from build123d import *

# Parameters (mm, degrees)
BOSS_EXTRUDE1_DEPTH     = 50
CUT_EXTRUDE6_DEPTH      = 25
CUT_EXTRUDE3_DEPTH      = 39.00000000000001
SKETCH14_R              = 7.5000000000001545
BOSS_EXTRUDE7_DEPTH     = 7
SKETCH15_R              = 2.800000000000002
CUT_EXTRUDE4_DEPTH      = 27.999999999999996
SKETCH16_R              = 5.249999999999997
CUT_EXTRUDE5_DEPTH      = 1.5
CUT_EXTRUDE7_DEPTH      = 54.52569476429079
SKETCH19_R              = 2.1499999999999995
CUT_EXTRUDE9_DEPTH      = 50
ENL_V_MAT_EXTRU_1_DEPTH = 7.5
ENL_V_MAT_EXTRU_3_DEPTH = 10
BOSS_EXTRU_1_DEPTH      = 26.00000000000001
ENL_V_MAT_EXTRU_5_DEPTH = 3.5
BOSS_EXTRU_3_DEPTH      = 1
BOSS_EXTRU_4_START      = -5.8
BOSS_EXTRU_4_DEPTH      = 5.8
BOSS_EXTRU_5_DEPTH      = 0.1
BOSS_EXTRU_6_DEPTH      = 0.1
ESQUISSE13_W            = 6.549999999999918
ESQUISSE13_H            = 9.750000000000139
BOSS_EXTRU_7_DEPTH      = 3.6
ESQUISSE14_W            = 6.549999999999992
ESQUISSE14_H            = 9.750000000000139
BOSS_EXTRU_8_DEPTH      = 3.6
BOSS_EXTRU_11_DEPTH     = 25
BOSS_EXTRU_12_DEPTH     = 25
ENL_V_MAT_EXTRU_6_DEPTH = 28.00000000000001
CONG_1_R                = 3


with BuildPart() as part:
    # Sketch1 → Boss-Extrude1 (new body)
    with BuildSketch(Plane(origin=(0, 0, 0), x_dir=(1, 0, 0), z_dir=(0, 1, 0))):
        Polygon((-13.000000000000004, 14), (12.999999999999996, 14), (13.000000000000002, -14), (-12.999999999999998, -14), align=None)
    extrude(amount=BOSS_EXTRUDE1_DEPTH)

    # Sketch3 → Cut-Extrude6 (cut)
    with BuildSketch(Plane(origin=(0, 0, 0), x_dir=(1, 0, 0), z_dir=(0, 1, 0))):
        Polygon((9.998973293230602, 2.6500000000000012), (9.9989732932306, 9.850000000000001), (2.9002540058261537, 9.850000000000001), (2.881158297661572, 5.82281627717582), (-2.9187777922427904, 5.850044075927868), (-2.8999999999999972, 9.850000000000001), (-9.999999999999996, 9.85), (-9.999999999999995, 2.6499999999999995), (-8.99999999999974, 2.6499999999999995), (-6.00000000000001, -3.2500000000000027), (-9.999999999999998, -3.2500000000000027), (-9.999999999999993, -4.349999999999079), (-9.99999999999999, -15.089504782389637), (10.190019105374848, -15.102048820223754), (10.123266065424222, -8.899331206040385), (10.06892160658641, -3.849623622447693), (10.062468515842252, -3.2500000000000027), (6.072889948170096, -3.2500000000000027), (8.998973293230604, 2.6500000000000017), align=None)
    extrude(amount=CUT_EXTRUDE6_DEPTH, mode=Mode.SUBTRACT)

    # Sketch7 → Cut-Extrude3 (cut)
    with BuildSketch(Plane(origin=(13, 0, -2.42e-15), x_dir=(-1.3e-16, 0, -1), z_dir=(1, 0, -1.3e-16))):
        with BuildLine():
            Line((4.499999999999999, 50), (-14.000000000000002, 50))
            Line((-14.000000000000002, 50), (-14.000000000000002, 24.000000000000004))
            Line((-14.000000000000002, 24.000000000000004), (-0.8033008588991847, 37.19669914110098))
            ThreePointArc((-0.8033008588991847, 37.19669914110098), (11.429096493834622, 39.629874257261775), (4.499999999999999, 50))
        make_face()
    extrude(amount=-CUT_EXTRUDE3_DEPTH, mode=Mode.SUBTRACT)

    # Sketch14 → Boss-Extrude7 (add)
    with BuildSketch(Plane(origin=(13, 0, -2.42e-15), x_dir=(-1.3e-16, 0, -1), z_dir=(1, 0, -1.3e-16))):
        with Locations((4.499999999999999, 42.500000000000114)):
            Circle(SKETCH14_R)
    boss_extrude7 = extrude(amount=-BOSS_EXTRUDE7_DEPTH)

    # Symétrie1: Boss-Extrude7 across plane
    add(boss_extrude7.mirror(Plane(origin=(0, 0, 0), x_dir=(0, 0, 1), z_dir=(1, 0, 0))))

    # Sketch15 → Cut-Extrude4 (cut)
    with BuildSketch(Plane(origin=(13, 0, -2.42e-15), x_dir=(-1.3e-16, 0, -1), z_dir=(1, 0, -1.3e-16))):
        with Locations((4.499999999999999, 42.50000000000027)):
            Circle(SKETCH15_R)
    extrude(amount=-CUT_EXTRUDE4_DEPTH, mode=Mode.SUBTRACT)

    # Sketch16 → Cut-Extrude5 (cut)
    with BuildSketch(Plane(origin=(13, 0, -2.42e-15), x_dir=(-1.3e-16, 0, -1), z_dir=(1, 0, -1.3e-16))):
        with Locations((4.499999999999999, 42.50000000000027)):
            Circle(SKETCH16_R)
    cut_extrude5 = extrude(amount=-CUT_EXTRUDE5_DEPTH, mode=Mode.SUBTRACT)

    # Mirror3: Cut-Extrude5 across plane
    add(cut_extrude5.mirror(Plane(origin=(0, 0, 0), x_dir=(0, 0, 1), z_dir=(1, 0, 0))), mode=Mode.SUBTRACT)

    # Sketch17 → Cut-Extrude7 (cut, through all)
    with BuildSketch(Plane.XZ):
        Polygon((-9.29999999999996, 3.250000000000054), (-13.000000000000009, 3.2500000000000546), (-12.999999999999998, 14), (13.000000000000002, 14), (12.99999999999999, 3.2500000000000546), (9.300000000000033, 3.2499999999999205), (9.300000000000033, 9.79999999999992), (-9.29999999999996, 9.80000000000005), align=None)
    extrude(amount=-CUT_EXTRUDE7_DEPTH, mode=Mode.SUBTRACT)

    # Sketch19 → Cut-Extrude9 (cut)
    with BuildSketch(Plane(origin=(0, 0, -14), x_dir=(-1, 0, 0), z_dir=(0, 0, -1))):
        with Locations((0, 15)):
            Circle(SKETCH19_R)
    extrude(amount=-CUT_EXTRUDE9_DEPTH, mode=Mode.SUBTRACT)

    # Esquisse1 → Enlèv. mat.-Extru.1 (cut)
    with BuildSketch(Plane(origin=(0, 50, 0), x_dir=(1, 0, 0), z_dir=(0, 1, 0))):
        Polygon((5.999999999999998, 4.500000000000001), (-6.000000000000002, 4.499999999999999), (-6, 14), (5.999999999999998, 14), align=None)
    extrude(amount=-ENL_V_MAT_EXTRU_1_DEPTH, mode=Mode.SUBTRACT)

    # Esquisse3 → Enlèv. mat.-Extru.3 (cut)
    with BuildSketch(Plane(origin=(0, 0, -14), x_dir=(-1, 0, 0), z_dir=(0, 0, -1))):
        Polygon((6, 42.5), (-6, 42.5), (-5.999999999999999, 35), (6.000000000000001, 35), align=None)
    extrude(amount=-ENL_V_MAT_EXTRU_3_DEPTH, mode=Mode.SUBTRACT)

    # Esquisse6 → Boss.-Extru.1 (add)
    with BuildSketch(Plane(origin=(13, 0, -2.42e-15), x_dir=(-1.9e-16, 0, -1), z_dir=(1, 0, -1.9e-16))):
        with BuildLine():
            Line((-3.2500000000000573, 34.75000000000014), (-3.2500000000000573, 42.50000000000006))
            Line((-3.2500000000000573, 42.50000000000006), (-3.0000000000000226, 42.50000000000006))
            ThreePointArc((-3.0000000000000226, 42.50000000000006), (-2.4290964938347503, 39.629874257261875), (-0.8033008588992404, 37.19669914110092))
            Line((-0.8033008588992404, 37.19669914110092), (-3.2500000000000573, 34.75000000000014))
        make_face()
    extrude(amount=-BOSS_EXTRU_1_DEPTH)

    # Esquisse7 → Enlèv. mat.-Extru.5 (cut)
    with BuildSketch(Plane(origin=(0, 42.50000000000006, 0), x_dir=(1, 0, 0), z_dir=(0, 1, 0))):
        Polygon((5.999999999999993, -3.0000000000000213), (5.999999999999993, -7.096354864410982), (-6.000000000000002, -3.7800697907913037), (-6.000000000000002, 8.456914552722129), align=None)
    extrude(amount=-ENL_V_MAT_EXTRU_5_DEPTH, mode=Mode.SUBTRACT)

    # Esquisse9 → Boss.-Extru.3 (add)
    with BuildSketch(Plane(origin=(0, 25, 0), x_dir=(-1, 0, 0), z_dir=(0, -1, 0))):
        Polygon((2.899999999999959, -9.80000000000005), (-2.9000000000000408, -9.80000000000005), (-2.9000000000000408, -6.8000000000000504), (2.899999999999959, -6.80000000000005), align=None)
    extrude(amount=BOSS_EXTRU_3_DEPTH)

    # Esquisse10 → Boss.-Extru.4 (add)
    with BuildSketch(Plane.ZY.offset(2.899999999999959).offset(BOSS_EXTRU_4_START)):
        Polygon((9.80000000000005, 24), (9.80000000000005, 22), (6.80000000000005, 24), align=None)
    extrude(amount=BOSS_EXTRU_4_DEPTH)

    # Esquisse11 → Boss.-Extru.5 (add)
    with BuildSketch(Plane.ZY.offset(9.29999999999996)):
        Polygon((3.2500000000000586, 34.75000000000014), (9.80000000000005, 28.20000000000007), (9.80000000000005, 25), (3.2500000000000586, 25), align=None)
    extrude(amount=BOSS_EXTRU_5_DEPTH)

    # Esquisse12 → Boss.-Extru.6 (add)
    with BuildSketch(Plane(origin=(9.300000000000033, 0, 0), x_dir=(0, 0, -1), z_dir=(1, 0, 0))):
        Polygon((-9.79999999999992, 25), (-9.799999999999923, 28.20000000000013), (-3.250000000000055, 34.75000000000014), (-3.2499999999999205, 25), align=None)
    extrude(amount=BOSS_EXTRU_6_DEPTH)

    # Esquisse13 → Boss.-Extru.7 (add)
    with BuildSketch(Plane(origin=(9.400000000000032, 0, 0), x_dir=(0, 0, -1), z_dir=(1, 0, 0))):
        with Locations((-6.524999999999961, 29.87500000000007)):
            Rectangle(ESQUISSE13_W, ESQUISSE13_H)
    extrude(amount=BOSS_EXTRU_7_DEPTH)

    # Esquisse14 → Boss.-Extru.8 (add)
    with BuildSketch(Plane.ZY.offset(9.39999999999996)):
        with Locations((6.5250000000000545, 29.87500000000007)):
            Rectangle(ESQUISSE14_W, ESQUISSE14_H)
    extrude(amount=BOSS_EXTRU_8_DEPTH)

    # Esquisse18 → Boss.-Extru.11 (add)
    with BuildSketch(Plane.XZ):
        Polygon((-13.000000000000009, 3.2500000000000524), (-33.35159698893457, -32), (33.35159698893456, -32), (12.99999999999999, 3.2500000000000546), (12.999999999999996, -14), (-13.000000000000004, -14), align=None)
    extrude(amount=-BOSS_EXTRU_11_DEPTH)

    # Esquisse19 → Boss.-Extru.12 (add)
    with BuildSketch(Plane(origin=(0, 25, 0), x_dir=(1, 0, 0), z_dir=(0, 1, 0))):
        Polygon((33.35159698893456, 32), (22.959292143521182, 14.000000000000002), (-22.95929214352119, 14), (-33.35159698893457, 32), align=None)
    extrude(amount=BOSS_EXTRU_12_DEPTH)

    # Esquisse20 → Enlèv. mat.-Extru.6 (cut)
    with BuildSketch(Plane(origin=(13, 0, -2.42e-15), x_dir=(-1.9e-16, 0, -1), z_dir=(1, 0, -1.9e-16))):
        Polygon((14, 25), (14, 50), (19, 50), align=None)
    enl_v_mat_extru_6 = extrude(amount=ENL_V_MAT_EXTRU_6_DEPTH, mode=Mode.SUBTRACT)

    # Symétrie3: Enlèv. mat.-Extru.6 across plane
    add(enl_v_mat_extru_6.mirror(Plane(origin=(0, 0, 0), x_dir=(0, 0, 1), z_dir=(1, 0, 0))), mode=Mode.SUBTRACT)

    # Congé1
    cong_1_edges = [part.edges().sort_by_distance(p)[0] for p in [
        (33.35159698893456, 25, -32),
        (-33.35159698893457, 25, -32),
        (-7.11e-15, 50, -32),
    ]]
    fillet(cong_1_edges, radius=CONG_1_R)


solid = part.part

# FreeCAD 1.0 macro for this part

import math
import FreeCAD as App
import Part
import Sketcher
Q = App.Units.Quantity


def edges_at(feature, points):
    """Names of the edges that pass closest to the given points."""
    edges = feature.Shape.Edges
    near = lambda p: min(range(len(edges)), key=lambda i: edges[i].distToShape(Part.Vertex(*p))[0])
    return sorted({f"Edge{near(p) + 1}" for p in points})


def add_polygon(sketch, points):
    """Adds a closed chain of lines whose ends are joined by coincident constraints."""
    first, n = sketch.GeometryCount, len(points)
    for a, b in zip(points, points[1:] + points[:1]):
        sketch.addGeometry(Part.LineSegment(App.Vector(*a, 0), App.Vector(*b, 0)), False)
    for i in range(n):
        sketch.addConstraint(Sketcher.Constraint("Coincident", first + i, 2, first + (i + 1) % n, 1))

doc = App.newDocument("Part")
params = doc.addObject("Spreadsheet::Sheet", "Params")
for row, (alias, value) in enumerate([
    ("sketch1_width", "26 mm"),
    ("sketch1_height", "28 mm"),
    ("pad1_length", "50 mm"),
    ("sketch2_width", "1 mm"),
    ("sketch2_width2", "4 mm"),
    ("sketch2_length", "4 mm"),
    ("sketch2_width3", "7.1 mm"),
    ("sketch2_height", "7.2 mm"),
    ("pocket1_length", "25 mm"),
    ("sketch3_radius", "7.5 mm"),
    ("sketch3_width", "26 mm"),
    ("sketch3_height", "18.5 mm"),
    ("pocket2_length", "39 mm"),
    ("sketch4_diameter", "15 mm"),
    ("pad2_length", "7 mm"),
    ("sketch5_diameter", "5.6 mm"),
    ("pocket3_length", "28 mm"),
    ("sketch6_diameter", "10.5 mm"),
    ("pocket4_length", "1.5 mm"),
    ("sketch7_width", "26 mm"),
    ("sketch7_width2", "3.7 mm"),
    ("sketch7_height", "6.55 mm"),
    ("sketch7_height2", "10.75 mm"),
    ("sketch8_diameter", "4.3 mm"),
    ("pocket6_length", "50 mm"),
    ("sketch9_width", "12 mm"),
    ("sketch9_height", "9.5 mm"),
    ("pocket7_length", "7.5 mm"),
    ("sketch10_width", "12 mm"),
    ("sketch10_height", "7.5 mm"),
    ("pocket8_length", "10 mm"),
    ("sketch11_radius", "7.5 mm"),
    ("sketch11_width", "7.75 mm"),
    ("sketch11_height", "0.25 mm"),
    ("pad3_length", "26 mm"),
    ("pocket9_length", "3.5 mm"),
    ("sketch13_height", "3 mm"),
    ("sketch13_width", "5.8 mm"),
    ("pad4_length", "1 mm"),
    ("sketch14_width", "2 mm"),
    ("sketch14_height", "3 mm"),
    ("pad5_length", "5.8 mm"),
    ("sketch15_width", "3.2 mm"),
    ("sketch15_width2", "9.75 mm"),
    ("pad6_length", "0.1 mm"),
    ("sketch16_width", "3.2 mm"),
    ("sketch16_width2", "9.75 mm"),
    ("pad7_length", "0.1 mm"),
    ("sketch17_width", "9.75 mm"),
    ("sketch17_height", "6.55 mm"),
    ("pad8_length", "3.6 mm"),
    ("sketch18_width", "9.75 mm"),
    ("sketch18_height", "6.55 mm"),
    ("pad9_length", "3.6 mm"),
    ("sketch19_width", "26 mm"),
    ("sketch19_height", "17.25 mm"),
    ("pad10_length", "25 mm"),
    ("pad11_length", "25 mm"),
    ("sketch21_width", "25 mm"),
    ("sketch21_height", "5 mm"),
    ("pocket10_length", "28 mm"),
    ("fillet_radius", "3 mm"),
], start=1):
    params.set(f"A{row}", alias)
    params.set(f"B{row}", "=" + value)
    params.setAlias(f"B{row}", alias)

body = doc.addObject("PartDesign::Body", "Body")

sketch1 = body.newObject("Sketcher::SketchObject", "Sketch")
sketch1.AttachmentSupport = (doc.getObject("XZ_Plane"), [""])
sketch1.MapMode = "FlatFace"
add_polygon(sketch1, [(13, -14), (-13, -14), (-13, 14), (13, 14)])
sketch1.addConstraint([
    Sketcher.Constraint("Horizontal", 0),
    Sketcher.Constraint("Vertical", 1),
    Sketcher.Constraint("Horizontal", 2),
    Sketcher.Constraint("Vertical", 3),
    Sketcher.Constraint("Symmetric", 0, 2, 2, 2, -1, 1),
    Sketcher.Constraint("DistanceX", 0, 2, 0, 1, 26.0),
    Sketcher.Constraint("DistanceY", 1, 1, 1, 2, 28.0),
])
sketch1.setExpression("Constraints[9]", "Params.sketch1_width")
sketch1.setExpression("Constraints[10]", "Params.sketch1_height")
pad1 = body.newObject("PartDesign::Pad", "Pad")
pad1.Profile = sketch1
pad1.setExpression("Length", "Params.pad1_length")
pad1.Reversed = True

sketch2 = body.newObject("Sketcher::SketchObject", "Sketch001")
sketch2.AttachmentSupport = (doc.getObject("XZ_Plane"), [""])
sketch2.MapMode = "FlatFace"
add_polygon(sketch2, [(10, -2.6), (10, -9.8), (2.9, -9.8), (2.9, -5.8), (-2.9, -5.9), (-2.9, -9.8), (-10, -9.8), (-10, -2.6), (-9, -2.6), (-6, 3.2), (-10, 3.2), (-10, 15.1), (10.2, 15.1), (10.1, 3.2), (6.1, 3.2), (9, -2.6)])
sketch2.addConstraint([
    Sketcher.Constraint("Vertical", 0),
    Sketcher.Constraint("Horizontal", 1),
    Sketcher.Constraint("Horizontal", 5),
    Sketcher.Constraint("Vertical", 6),
    Sketcher.Constraint("Horizontal", 7),
    Sketcher.Constraint("Horizontal", 9),
    Sketcher.Constraint("Vertical", 10),
    Sketcher.Constraint("Horizontal", 13),
    Sketcher.Constraint("Horizontal", 15),
    Sketcher.Constraint("Perpendicular", 3, 4),
    Sketcher.Constraint("Horizontal", 1, 2, 4, 2),
    Sketcher.Constraint("Horizontal", 9, 2, 12, 2),
    Sketcher.Constraint("Horizontal", 7, 2, 14, 2),
    Sketcher.Constraint("Vertical", 6, 2, 9, 2),
    Sketcher.Constraint("Equal", 7, 15),
    Sketcher.Constraint("DistanceX", 7, 1, 7, 2, 1.0),
    Sketcher.Constraint("DistanceX", 9, 2, 9, 1, 4.0),
    Sketcher.Constraint("Distance", 4, 4.0),
    Sketcher.Constraint("DistanceX", 5, 2, 5, 1, 7.1),
    Sketcher.Constraint("DistanceY", 0, 2, 0, 1, 7.2),
    Sketcher.Constraint("DistanceX", 5, 2, -1, 1, 10.0),
    Sketcher.Constraint("Distance", 3, 5.8),
    Sketcher.Constraint("DistanceY", 7, 2, 8, 2, 5.9),
    Sketcher.Constraint("DistanceY", 0, 2, -1, 1, 9.85),
    Sketcher.Constraint("DistanceX", 1, 2, 1, 1, 7.098719),
    Sketcher.Constraint("DistanceX", 13, 2, 13, 1, 3.989579),
    Sketcher.Constraint("Distance", 2, 4.027229),
    Sketcher.Constraint("Distance", 14, 6.585739),
    Sketcher.Constraint("DistanceY", 10, 1, 10, 2, 11.839505),
    Sketcher.Constraint("DistanceX", -1, 1, 11, 2, 10.190019),
    Sketcher.Constraint("DistanceY", -1, 1, 11, 2, 15.102049),
    Sketcher.Constraint("DistanceX", -1, 1, 12, 2, 10.062469),
])
sketch2.setExpression("Constraints[31]", "Params.sketch2_width")
sketch2.setExpression("Constraints[32]", "Params.sketch2_width2")
sketch2.setExpression("Constraints[33]", "Params.sketch2_length")
sketch2.setExpression("Constraints[34]", "Params.sketch2_width3")
sketch2.setExpression("Constraints[35]", "Params.sketch2_height")
pocket1 = body.newObject("PartDesign::Pocket", "Pocket")
pocket1.Profile = sketch2
pocket1.setExpression("Length", "Params.pocket1_length")

sketch3 = body.newObject("Sketcher::SketchObject", "Sketch002")
sketch3.AttachmentSupport = (doc.getObject("YZ_Plane"), [""])
sketch3.MapMode = "FlatFace"
sketch3.AttachmentOffset = App.Placement(App.Vector(0, 0, 13), App.Rotation())
sketch3.addGeometry([
    Part.LineSegment(App.Vector(50, -4, 0), App.Vector(50, 14, 0)),
    Part.LineSegment(App.Vector(50, 14, 0), App.Vector(24, 14, 0)),
    Part.LineSegment(App.Vector(24, 14, 0), App.Vector(37, 1, 0)),
    Part.ArcOfCircle(Part.Circle(App.Vector(42, -4, 0), App.Vector(0, 0, 1), 8), math.radians(135), math.radians(360)),
], False)
sketch3.addConstraint([
    Sketcher.Constraint("Coincident", 0, 2, 1, 1),
    Sketcher.Constraint("Coincident", 1, 2, 2, 1),
    Sketcher.Constraint("Coincident", 2, 2, 3, 1),
    Sketcher.Constraint("Tangent", 3, 2, 0, 1),
    Sketcher.Constraint("Vertical", 0),
    Sketcher.Constraint("Horizontal", 1),
    Sketcher.Constraint("Radius", 3, 7.5),
    Sketcher.Constraint("DistanceX", 1, 2, 1, 1, 26.0),
    Sketcher.Constraint("Angle", 2, Q("-45 deg")),
    Sketcher.Constraint("DistanceY", 0, 1, 0, 2, 18.5),
    Sketcher.Constraint("DistanceX", -1, 1, 0, 2, 50.0),
    Sketcher.Constraint("DistanceY", -1, 1, 0, 2, 14.0),
])
sketch3.setExpression("Constraints[6]", "Params.sketch3_radius")
sketch3.setExpression("Constraints[7]", "Params.sketch3_width")
sketch3.setExpression("Constraints[9]", "Params.sketch3_height")
pocket2 = body.newObject("PartDesign::Pocket", "Pocket001")
pocket2.Profile = sketch3
pocket2.setExpression("Length", "Params.pocket2_length")

sketch4 = body.newObject("Sketcher::SketchObject", "Sketch003")
sketch4.AttachmentSupport = (doc.getObject("YZ_Plane"), [""])
sketch4.MapMode = "FlatFace"
sketch4.AttachmentOffset = App.Placement(App.Vector(0, 0, 13), App.Rotation())
sketch4.addGeometry(Part.Circle(App.Vector(42, -4, 0), App.Vector(0, 0, 1), 8), False)
sketch4.addConstraint([
    Sketcher.Constraint("Diameter", 0, 15.0),
    Sketcher.Constraint("DistanceX", -1, 1, 0, 3, 42.5),
    Sketcher.Constraint("DistanceY", 0, 3, -1, 1, 4.5),
])
sketch4.setExpression("Constraints[0]", "Params.sketch4_diameter")
pad2 = body.newObject("PartDesign::Pad", "Pad001")
pad2.Profile = sketch4
pad2.setExpression("Length", "Params.pad2_length")
pad2.Reversed = True
doc.recompute()

mirrored = body.newObject("PartDesign::Mirrored", "Mirrored")
mirrored.Originals = [pad2]
mirrored.MirrorPlane = (doc.getObject("YZ_Plane"), [""])
body.Tip = mirrored

sketch5 = body.newObject("Sketcher::SketchObject", "Sketch004")
sketch5.AttachmentSupport = (doc.getObject("YZ_Plane"), [""])
sketch5.MapMode = "FlatFace"
sketch5.AttachmentOffset = App.Placement(App.Vector(0, 0, 13), App.Rotation())
sketch5.addGeometry(Part.Circle(App.Vector(42.5, -4.5, 0), App.Vector(0, 0, 1), 2.8), False)
sketch5.addConstraint([
    Sketcher.Constraint("Diameter", 0, 5.6),
    Sketcher.Constraint("DistanceX", -1, 1, 0, 3, 42.5),
    Sketcher.Constraint("DistanceY", 0, 3, -1, 1, 4.5),
])
sketch5.setExpression("Constraints[0]", "Params.sketch5_diameter")
pocket3 = body.newObject("PartDesign::Pocket", "Pocket002")
pocket3.Profile = sketch5
pocket3.setExpression("Length", "Params.pocket3_length")

sketch6 = body.newObject("Sketcher::SketchObject", "Sketch005")
sketch6.AttachmentSupport = (doc.getObject("YZ_Plane"), [""])
sketch6.MapMode = "FlatFace"
sketch6.AttachmentOffset = App.Placement(App.Vector(0, 0, 13), App.Rotation())
sketch6.addGeometry(Part.Circle(App.Vector(42, -4, 0), App.Vector(0, 0, 1), 5), False)
sketch6.addConstraint([
    Sketcher.Constraint("Diameter", 0, 10.5),
    Sketcher.Constraint("DistanceX", -1, 1, 0, 3, 42.5),
    Sketcher.Constraint("DistanceY", 0, 3, -1, 1, 4.5),
])
sketch6.setExpression("Constraints[0]", "Params.sketch6_diameter")
pocket4 = body.newObject("PartDesign::Pocket", "Pocket003")
pocket4.Profile = sketch6
pocket4.setExpression("Length", "Params.pocket4_length")
doc.recompute()

mirrored2 = body.newObject("PartDesign::Mirrored", "Mirrored001")
mirrored2.Originals = [pocket4]
mirrored2.MirrorPlane = (doc.getObject("YZ_Plane"), [""])
body.Tip = mirrored2

sketch7 = body.newObject("Sketcher::SketchObject", "Sketch006")
sketch7.AttachmentSupport = (doc.getObject("XZ_Plane"), [""])
sketch7.MapMode = "FlatFace"
add_polygon(sketch7, [(-13, 3.2), (-9.3, 3.2), (-9.3, 9.8), (9.3, 9.8), (9.3, 3.2), (13, 3.2), (13, 14), (-13, 14)])
sketch7.addConstraint([
    Sketcher.Constraint("Horizontal", 0),
    Sketcher.Constraint("Vertical", 1),
    Sketcher.Constraint("Horizontal", 2),
    Sketcher.Constraint("Vertical", 3),
    Sketcher.Constraint("Horizontal", 4),
    Sketcher.Constraint("Vertical", 5),
    Sketcher.Constraint("Horizontal", 6),
    Sketcher.Constraint("Vertical", 7),
    Sketcher.Constraint("Symmetric", 0, 2, 3, 2, -2),
    Sketcher.Constraint("Equal", 0, 4),
    Sketcher.Constraint("DistanceX", 6, 2, 6, 1, 26.0),
    Sketcher.Constraint("DistanceX", 0, 1, 0, 2, 3.7),
    Sketcher.Constraint("DistanceY", -1, 1, 5, 2, 14.0),
    Sketcher.Constraint("DistanceY", 1, 1, 1, 2, 6.55),
    Sketcher.Constraint("DistanceY", 5, 1, 5, 2, 10.75),
])
sketch7.setExpression("Constraints[18]", "Params.sketch7_width")
sketch7.setExpression("Constraints[19]", "Params.sketch7_width2")
sketch7.setExpression("Constraints[21]", "Params.sketch7_height")
sketch7.setExpression("Constraints[22]", "Params.sketch7_height2")
pocket5 = body.newObject("PartDesign::Pocket", "Pocket004")
pocket5.Profile = sketch7
pocket5.Type = "ThroughAll"

sketch8 = body.newObject("Sketcher::SketchObject", "Sketch007")
sketch8.AttachmentSupport = (doc.getObject("XY_Plane"), [""])
sketch8.MapMode = "FlatFace"
sketch8.AttachmentOffset = App.Placement(App.Vector(0, 0, -14), App.Rotation())
sketch8.addGeometry(Part.Circle(App.Vector(0, 15, 0), App.Vector(0, 0, 1), 2.1), False)
sketch8.addConstraint([
    Sketcher.Constraint("PointOnObject", 0, 3, -2),
    Sketcher.Constraint("Diameter", 0, 4.3),
    Sketcher.Constraint("DistanceY", -1, 1, 0, 3, 15.0),
])
sketch8.setExpression("Constraints[1]", "Params.sketch8_diameter")
pocket6 = body.newObject("PartDesign::Pocket", "Pocket005")
pocket6.Profile = sketch8
pocket6.setExpression("Length", "Params.pocket6_length")
pocket6.Reversed = True

sketch9 = body.newObject("Sketcher::SketchObject", "Sketch008")
sketch9.AttachmentSupport = (doc.getObject("XZ_Plane"), [""])
sketch9.MapMode = "FlatFace"
sketch9.AttachmentOffset = App.Placement(App.Vector(0, 0, -50), App.Rotation())
add_polygon(sketch9, [(-6, -4), (6, -4), (6, -14), (-6, -14)])
sketch9.addConstraint([
    Sketcher.Constraint("Horizontal", 0),
    Sketcher.Constraint("Vertical", 1),
    Sketcher.Constraint("Horizontal", 2),
    Sketcher.Constraint("Vertical", 3),
    Sketcher.Constraint("DistanceX", 0, 1, 0, 2, 12.0),
    Sketcher.Constraint("DistanceY", 1, 2, 1, 1, 9.5),
    Sketcher.Constraint("DistanceX", -1, 1, 0, 2, 6.0),
    Sketcher.Constraint("DistanceY", 1, 2, -1, 1, 14.0),
])
sketch9.setExpression("Constraints[8]", "Params.sketch9_width")
sketch9.setExpression("Constraints[9]", "Params.sketch9_height")
pocket7 = body.newObject("PartDesign::Pocket", "Pocket006")
pocket7.Profile = sketch9
pocket7.setExpression("Length", "Params.pocket7_length")
pocket7.Reversed = True

sketch10 = body.newObject("Sketcher::SketchObject", "Sketch009")
sketch10.AttachmentSupport = (doc.getObject("XY_Plane"), [""])
sketch10.MapMode = "FlatFace"
sketch10.AttachmentOffset = App.Placement(App.Vector(0, 0, -14), App.Rotation())
add_polygon(sketch10, [(-6, 42), (6, 42), (6, 35), (-6, 35)])
sketch10.addConstraint([
    Sketcher.Constraint("Horizontal", 0),
    Sketcher.Constraint("Vertical", 1),
    Sketcher.Constraint("Horizontal", 2),
    Sketcher.Constraint("Vertical", 3),
    Sketcher.Constraint("DistanceX", 0, 1, 0, 2, 12.0),
    Sketcher.Constraint("DistanceY", 1, 2, 1, 1, 7.5),
    Sketcher.Constraint("DistanceX", -1, 1, 0, 2, 6.0),
    Sketcher.Constraint("DistanceY", -1, 1, 1, 2, 35.0),
])
sketch10.setExpression("Constraints[8]", "Params.sketch10_width")
sketch10.setExpression("Constraints[9]", "Params.sketch10_height")
pocket8 = body.newObject("PartDesign::Pocket", "Pocket007")
pocket8.Profile = sketch10
pocket8.setExpression("Length", "Params.pocket8_length")
pocket8.Reversed = True

sketch11 = body.newObject("Sketcher::SketchObject", "Sketch010")
sketch11.AttachmentSupport = (doc.getObject("YZ_Plane"), [""])
sketch11.MapMode = "FlatFace"
sketch11.AttachmentOffset = App.Placement(App.Vector(0, 0, 13), App.Rotation())
sketch11.addGeometry([
    Part.LineSegment(App.Vector(42.5, 3.25, 0), App.Vector(34.75, 3.25, 0)),
    Part.LineSegment(App.Vector(34.75, 3.25, 0), App.Vector(37.2, 0.8, 0)),
    Part.ArcOfCircle(Part.Circle(App.Vector(42.5, -4.5, 0), App.Vector(0, 0, 1), 7.5), math.radians(90), math.radians(135)),
    Part.LineSegment(App.Vector(42.5, 3, 0), App.Vector(42.5, 3.25, 0)),
], False)
sketch11.addConstraint([
    Sketcher.Constraint("Coincident", 0, 2, 1, 1),
    Sketcher.Constraint("Coincident", 1, 2, 2, 2),
    Sketcher.Constraint("Coincident", 2, 1, 3, 1),
    Sketcher.Constraint("Coincident", 3, 2, 0, 1),
    Sketcher.Constraint("Horizontal", 0),
    Sketcher.Constraint("Vertical", 3),
    Sketcher.Constraint("Radius", 2, 7.5),
    Sketcher.Constraint("Angle", 1, Q("-45 deg")),
    Sketcher.Constraint("DistanceY", -1, 1, 2, 1, 3.0),
    Sketcher.Constraint("DistanceX", 0, 2, 0, 1, 7.75),
    Sketcher.Constraint("DistanceY", 3, 1, 3, 2, 0.25),
    Sketcher.Constraint("DistanceX", -1, 1, 2, 3, 42.5),
    Sketcher.Constraint("DistanceX", -1, 1, 2, 1, 42.5),
])
sketch11.setExpression("Constraints[6]", "Params.sketch11_radius")
sketch11.setExpression("Constraints[9]", "Params.sketch11_width")
sketch11.setExpression("Constraints[10]", "Params.sketch11_height")
pad3 = body.newObject("PartDesign::Pad", "Pad002")
pad3.Profile = sketch11
pad3.setExpression("Length", "Params.pad3_length")
pad3.Reversed = True

sketch12 = body.newObject("Sketcher::SketchObject", "Sketch011")
sketch12.AttachmentSupport = (doc.getObject("XZ_Plane"), [""])
sketch12.MapMode = "FlatFace"
sketch12.AttachmentOffset = App.Placement(App.Vector(0, 0, -42.5), App.Rotation())
add_polygon(sketch12, [(6, 7.1), (6, 3), (-6, -8.5), (-6, 3.8)])
sketch12.addConstraint([
    Sketcher.Constraint("Vertical", 0),
    Sketcher.Constraint("Vertical", 2),
    Sketcher.Constraint("DistanceX", -1, 1, 0, 2, 6.0),
    Sketcher.Constraint("DistanceY", -1, 1, 0, 2, 3.0),
    Sketcher.Constraint("DistanceX", 1, 2, -1, 1, 6.0),
    Sketcher.Constraint("Distance", 1, 16.590988),
    Sketcher.Constraint("Distance", 3, 12.449809),
    Sketcher.Constraint("DistanceY", 0, 2, 0, 1, 4.096355),
])
pocket9 = body.newObject("PartDesign::Pocket", "Pocket008")
pocket9.Profile = sketch12
pocket9.setExpression("Length", "Params.pocket9_length")
pocket9.Reversed = True

sketch13 = body.newObject("Sketcher::SketchObject", "Sketch012")
sketch13.AttachmentSupport = (doc.getObject("XZ_Plane"), [""])
sketch13.MapMode = "FlatFace"
sketch13.AttachmentOffset = App.Placement(App.Vector(0, 0, -25), App.Rotation())
add_polygon(sketch13, [(2.9, 9.8), (-2.9, 9.8), (-2.9, 6.8), (2.9, 6.8)])
sketch13.addConstraint([
    Sketcher.Constraint("Horizontal", 0),
    Sketcher.Constraint("Vertical", 1),
    Sketcher.Constraint("Horizontal", 2),
    Sketcher.Constraint("Vertical", 3),
    Sketcher.Constraint("DistanceY", 1, 2, 1, 1, 3.0),
    Sketcher.Constraint("DistanceX", 0, 2, 0, 1, 5.8),
    Sketcher.Constraint("DistanceX", 0, 2, -1, 1, 2.9),
    Sketcher.Constraint("DistanceY", -1, 1, 0, 2, 9.8),
])
sketch13.setExpression("Constraints[8]", "Params.sketch13_height")
sketch13.setExpression("Constraints[9]", "Params.sketch13_width")
pad4 = body.newObject("PartDesign::Pad", "Pad003")
pad4.Profile = sketch13
pad4.setExpression("Length", "Params.pad4_length")

sketch14 = body.newObject("Sketcher::SketchObject", "Sketch013")
sketch14.AttachmentSupport = (doc.getObject("YZ_Plane"), [""])
sketch14.MapMode = "FlatFace"
sketch14.AttachmentOffset = App.Placement(App.Vector(0, 0, 2.9), App.Rotation())
add_polygon(sketch14, [(22, 9.8), (24, 9.8), (24, 6.8)])
sketch14.addConstraint([
    Sketcher.Constraint("Horizontal", 0),
    Sketcher.Constraint("Vertical", 1),
    Sketcher.Constraint("DistanceX", 0, 1, 0, 2, 2.0),
    Sketcher.Constraint("DistanceY", 1, 2, 1, 1, 3.0),
    Sketcher.Constraint("DistanceX", -1, 1, 0, 2, 24.0),
    Sketcher.Constraint("DistanceY", -1, 1, 0, 2, 9.8),
])
sketch14.setExpression("Constraints[5]", "Params.sketch14_width")
sketch14.setExpression("Constraints[6]", "Params.sketch14_height")
pad5 = body.newObject("PartDesign::Pad", "Pad004")
pad5.Profile = sketch14
pad5.setExpression("Length", "Params.pad5_length")
pad5.Reversed = True

sketch15 = body.newObject("Sketcher::SketchObject", "Sketch014")
sketch15.AttachmentSupport = (doc.getObject("YZ_Plane"), [""])
sketch15.MapMode = "FlatFace"
sketch15.AttachmentOffset = App.Placement(App.Vector(0, 0, -9.3), App.Rotation())
add_polygon(sketch15, [(28.2, 9.8), (34.8, 3.2), (25, 3.2), (25, 9.8)])
sketch15.addConstraint([
    Sketcher.Constraint("Horizontal", 1),
    Sketcher.Constraint("Vertical", 2),
    Sketcher.Constraint("Horizontal", 3),
    Sketcher.Constraint("Angle", 0, Q("-45 deg")),
    Sketcher.Constraint("DistanceX", 3, 1, 3, 2, 3.2),
    Sketcher.Constraint("DistanceX", -1, 1, 1, 2, 25.0),
    Sketcher.Constraint("DistanceX", 1, 2, 1, 1, 9.75),
    Sketcher.Constraint("DistanceY", -1, 1, 2, 2, 9.8),
])
sketch15.setExpression("Constraints[8]", "Params.sketch15_width")
sketch15.setExpression("Constraints[10]", "Params.sketch15_width2")
pad6 = body.newObject("PartDesign::Pad", "Pad005")
pad6.Profile = sketch15
pad6.setExpression("Length", "Params.pad6_length")
pad6.Reversed = True

sketch16 = body.newObject("Sketcher::SketchObject", "Sketch015")
sketch16.AttachmentSupport = (doc.getObject("YZ_Plane"), [""])
sketch16.MapMode = "FlatFace"
sketch16.AttachmentOffset = App.Placement(App.Vector(0, 0, 9.3), App.Rotation())
add_polygon(sketch16, [(28.2, 9.8), (25, 9.8), (25, 3.2), (34.8, 3.2)])
sketch16.addConstraint([
    Sketcher.Constraint("Horizontal", 0),
    Sketcher.Constraint("Vertical", 1),
    Sketcher.Constraint("Horizontal", 2),
    Sketcher.Constraint("Angle", 3, Q("135 deg")),
    Sketcher.Constraint("DistanceX", 0, 2, 0, 1, 3.2),
    Sketcher.Constraint("DistanceX", -1, 1, 0, 2, 25.0),
    Sketcher.Constraint("DistanceX", 2, 1, 2, 2, 9.75),
    Sketcher.Constraint("DistanceY", -1, 1, 0, 2, 9.8),
])
sketch16.setExpression("Constraints[8]", "Params.sketch16_width")
sketch16.setExpression("Constraints[10]", "Params.sketch16_width2")
pad7 = body.newObject("PartDesign::Pad", "Pad006")
pad7.Profile = sketch16
pad7.setExpression("Length", "Params.pad7_length")

sketch17 = body.newObject("Sketcher::SketchObject", "Sketch016")
sketch17.AttachmentSupport = (doc.getObject("YZ_Plane"), [""])
sketch17.MapMode = "FlatFace"
sketch17.AttachmentOffset = App.Placement(App.Vector(0, 0, 9.4), App.Rotation())
add_polygon(sketch17, [(35, 10), (25, 10), (25, 3), (35, 3)])
sketch17.addConstraint([
    Sketcher.Constraint("Horizontal", 0),
    Sketcher.Constraint("Vertical", 1),
    Sketcher.Constraint("Horizontal", 2),
    Sketcher.Constraint("Vertical", 3),
    Sketcher.Constraint("DistanceX", -1, 1, 0, 2, 25.0),
    Sketcher.Constraint("DistanceX", 0, 2, 0, 1, 9.75),
    Sketcher.Constraint("DistanceY", 1, 2, 1, 1, 6.55),
    Sketcher.Constraint("DistanceY", -1, 1, 0, 2, 9.8),
])
sketch17.setExpression("Constraints[9]", "Params.sketch17_width")
sketch17.setExpression("Constraints[10]", "Params.sketch17_height")
pad8 = body.newObject("PartDesign::Pad", "Pad007")
pad8.Profile = sketch17
pad8.setExpression("Length", "Params.pad8_length")

sketch18 = body.newObject("Sketcher::SketchObject", "Sketch017")
sketch18.AttachmentSupport = (doc.getObject("YZ_Plane"), [""])
sketch18.MapMode = "FlatFace"
sketch18.AttachmentOffset = App.Placement(App.Vector(0, 0, -9.4), App.Rotation())
add_polygon(sketch18, [(35, 3), (25, 3), (25, 10), (35, 10)])
sketch18.addConstraint([
    Sketcher.Constraint("Horizontal", 0),
    Sketcher.Constraint("Vertical", 1),
    Sketcher.Constraint("Horizontal", 2),
    Sketcher.Constraint("Vertical", 3),
    Sketcher.Constraint("DistanceX", -1, 1, 0, 2, 25.0),
    Sketcher.Constraint("DistanceX", 0, 2, 0, 1, 9.75),
    Sketcher.Constraint("DistanceY", 1, 1, 1, 2, 6.55),
    Sketcher.Constraint("DistanceY", -1, 1, 1, 2, 9.8),
])
sketch18.setExpression("Constraints[9]", "Params.sketch18_width")
sketch18.setExpression("Constraints[10]", "Params.sketch18_height")
pad9 = body.newObject("PartDesign::Pad", "Pad008")
pad9.Profile = sketch18
pad9.setExpression("Length", "Params.pad9_length")
pad9.Reversed = True

sketch19 = body.newObject("Sketcher::SketchObject", "Sketch018")
sketch19.AttachmentSupport = (doc.getObject("XZ_Plane"), [""])
sketch19.MapMode = "FlatFace"
add_polygon(sketch19, [(-13, 3), (-33, -32), (33, -32), (13, 3), (13, -14), (-13, -14)])
sketch19.addConstraint([
    Sketcher.Constraint("Horizontal", 1),
    Sketcher.Constraint("Vertical", 3),
    Sketcher.Constraint("Horizontal", 4),
    Sketcher.Constraint("Vertical", 5),
    Sketcher.Constraint("Symmetric", 2, 2, 5, 2, -2),
    Sketcher.Constraint("Equal", 0, 2),
    Sketcher.Constraint("DistanceX", 4, 2, 4, 1, 26.0),
    Sketcher.Constraint("Angle", 0, Q("-120 deg")),
    Sketcher.Constraint("DistanceY", 0, 2, -1, 1, 32.0),
    Sketcher.Constraint("DistanceY", 3, 2, -1, 1, 14.0),
    Sketcher.Constraint("DistanceY", 3, 2, 3, 1, 17.25),
])
sketch19.setExpression("Constraints[12]", "Params.sketch19_width")
sketch19.setExpression("Constraints[16]", "Params.sketch19_height")
pad10 = body.newObject("PartDesign::Pad", "Pad009")
pad10.Profile = sketch19
pad10.setExpression("Length", "Params.pad10_length")
pad10.Reversed = True

sketch20 = body.newObject("Sketcher::SketchObject", "Sketch019")
sketch20.AttachmentSupport = (doc.getObject("XZ_Plane"), [""])
sketch20.MapMode = "FlatFace"
sketch20.AttachmentOffset = App.Placement(App.Vector(0, 0, -25), App.Rotation())
add_polygon(sketch20, [(23, -14), (33, -32), (-33, -32), (-23, -14)])
sketch20.addConstraint([
    Sketcher.Constraint("Horizontal", 1),
    Sketcher.Constraint("Horizontal", 3),
    Sketcher.Constraint("Equal", 0, 2),
    Sketcher.Constraint("Angle", 0, Q("-60 deg")),
    Sketcher.Constraint("DistanceY", 0, 2, -1, 1, 32.0),
    Sketcher.Constraint("DistanceY", 2, 2, -1, 1, 14.0),
    Sketcher.Constraint("DistanceX", 1, 2, 1, 1, 66.703194),
    Sketcher.Constraint("DistanceX", -1, 1, 0, 2, 33.351597),
])
pad11 = body.newObject("PartDesign::Pad", "Pad010")
pad11.Profile = sketch20
pad11.setExpression("Length", "Params.pad11_length")
pad11.Reversed = True

sketch21 = body.newObject("Sketcher::SketchObject", "Sketch020")
sketch21.AttachmentSupport = (doc.getObject("YZ_Plane"), [""])
sketch21.MapMode = "FlatFace"
sketch21.AttachmentOffset = App.Placement(App.Vector(0, 0, 13), App.Rotation())
add_polygon(sketch21, [(50, -14), (25, -14), (50, -19)])
sketch21.addConstraint([
    Sketcher.Constraint("Horizontal", 0),
    Sketcher.Constraint("Vertical", 2),
    Sketcher.Constraint("DistanceX", 0, 2, 0, 1, 25.0),
    Sketcher.Constraint("DistanceY", 2, 1, 2, 2, 5.0),
    Sketcher.Constraint("DistanceX", -1, 1, 0, 2, 25.0),
    Sketcher.Constraint("DistanceY", 0, 2, -1, 1, 14.0),
])
sketch21.setExpression("Constraints[5]", "Params.sketch21_width")
sketch21.setExpression("Constraints[6]", "Params.sketch21_height")
pocket10 = body.newObject("PartDesign::Pocket", "Pocket009")
pocket10.Profile = sketch21
pocket10.setExpression("Length", "Params.pocket10_length")
pocket10.Reversed = True
doc.recompute()

mirrored3 = body.newObject("PartDesign::Mirrored", "Mirrored002")
mirrored3.Originals = [pocket10]
mirrored3.MirrorPlane = (doc.getObject("YZ_Plane"), [""])
body.Tip = mirrored3
doc.recompute()

fillet = body.newObject("PartDesign::Fillet", "Fillet")
fillet.Base = (mirrored3, edges_at(mirrored3, [(33.352, 25, -32), (-33.352, 25, -32), (0, 50, -32)]))
fillet.setExpression("Radius", "Params.fillet_radius")

doc.recompute()
